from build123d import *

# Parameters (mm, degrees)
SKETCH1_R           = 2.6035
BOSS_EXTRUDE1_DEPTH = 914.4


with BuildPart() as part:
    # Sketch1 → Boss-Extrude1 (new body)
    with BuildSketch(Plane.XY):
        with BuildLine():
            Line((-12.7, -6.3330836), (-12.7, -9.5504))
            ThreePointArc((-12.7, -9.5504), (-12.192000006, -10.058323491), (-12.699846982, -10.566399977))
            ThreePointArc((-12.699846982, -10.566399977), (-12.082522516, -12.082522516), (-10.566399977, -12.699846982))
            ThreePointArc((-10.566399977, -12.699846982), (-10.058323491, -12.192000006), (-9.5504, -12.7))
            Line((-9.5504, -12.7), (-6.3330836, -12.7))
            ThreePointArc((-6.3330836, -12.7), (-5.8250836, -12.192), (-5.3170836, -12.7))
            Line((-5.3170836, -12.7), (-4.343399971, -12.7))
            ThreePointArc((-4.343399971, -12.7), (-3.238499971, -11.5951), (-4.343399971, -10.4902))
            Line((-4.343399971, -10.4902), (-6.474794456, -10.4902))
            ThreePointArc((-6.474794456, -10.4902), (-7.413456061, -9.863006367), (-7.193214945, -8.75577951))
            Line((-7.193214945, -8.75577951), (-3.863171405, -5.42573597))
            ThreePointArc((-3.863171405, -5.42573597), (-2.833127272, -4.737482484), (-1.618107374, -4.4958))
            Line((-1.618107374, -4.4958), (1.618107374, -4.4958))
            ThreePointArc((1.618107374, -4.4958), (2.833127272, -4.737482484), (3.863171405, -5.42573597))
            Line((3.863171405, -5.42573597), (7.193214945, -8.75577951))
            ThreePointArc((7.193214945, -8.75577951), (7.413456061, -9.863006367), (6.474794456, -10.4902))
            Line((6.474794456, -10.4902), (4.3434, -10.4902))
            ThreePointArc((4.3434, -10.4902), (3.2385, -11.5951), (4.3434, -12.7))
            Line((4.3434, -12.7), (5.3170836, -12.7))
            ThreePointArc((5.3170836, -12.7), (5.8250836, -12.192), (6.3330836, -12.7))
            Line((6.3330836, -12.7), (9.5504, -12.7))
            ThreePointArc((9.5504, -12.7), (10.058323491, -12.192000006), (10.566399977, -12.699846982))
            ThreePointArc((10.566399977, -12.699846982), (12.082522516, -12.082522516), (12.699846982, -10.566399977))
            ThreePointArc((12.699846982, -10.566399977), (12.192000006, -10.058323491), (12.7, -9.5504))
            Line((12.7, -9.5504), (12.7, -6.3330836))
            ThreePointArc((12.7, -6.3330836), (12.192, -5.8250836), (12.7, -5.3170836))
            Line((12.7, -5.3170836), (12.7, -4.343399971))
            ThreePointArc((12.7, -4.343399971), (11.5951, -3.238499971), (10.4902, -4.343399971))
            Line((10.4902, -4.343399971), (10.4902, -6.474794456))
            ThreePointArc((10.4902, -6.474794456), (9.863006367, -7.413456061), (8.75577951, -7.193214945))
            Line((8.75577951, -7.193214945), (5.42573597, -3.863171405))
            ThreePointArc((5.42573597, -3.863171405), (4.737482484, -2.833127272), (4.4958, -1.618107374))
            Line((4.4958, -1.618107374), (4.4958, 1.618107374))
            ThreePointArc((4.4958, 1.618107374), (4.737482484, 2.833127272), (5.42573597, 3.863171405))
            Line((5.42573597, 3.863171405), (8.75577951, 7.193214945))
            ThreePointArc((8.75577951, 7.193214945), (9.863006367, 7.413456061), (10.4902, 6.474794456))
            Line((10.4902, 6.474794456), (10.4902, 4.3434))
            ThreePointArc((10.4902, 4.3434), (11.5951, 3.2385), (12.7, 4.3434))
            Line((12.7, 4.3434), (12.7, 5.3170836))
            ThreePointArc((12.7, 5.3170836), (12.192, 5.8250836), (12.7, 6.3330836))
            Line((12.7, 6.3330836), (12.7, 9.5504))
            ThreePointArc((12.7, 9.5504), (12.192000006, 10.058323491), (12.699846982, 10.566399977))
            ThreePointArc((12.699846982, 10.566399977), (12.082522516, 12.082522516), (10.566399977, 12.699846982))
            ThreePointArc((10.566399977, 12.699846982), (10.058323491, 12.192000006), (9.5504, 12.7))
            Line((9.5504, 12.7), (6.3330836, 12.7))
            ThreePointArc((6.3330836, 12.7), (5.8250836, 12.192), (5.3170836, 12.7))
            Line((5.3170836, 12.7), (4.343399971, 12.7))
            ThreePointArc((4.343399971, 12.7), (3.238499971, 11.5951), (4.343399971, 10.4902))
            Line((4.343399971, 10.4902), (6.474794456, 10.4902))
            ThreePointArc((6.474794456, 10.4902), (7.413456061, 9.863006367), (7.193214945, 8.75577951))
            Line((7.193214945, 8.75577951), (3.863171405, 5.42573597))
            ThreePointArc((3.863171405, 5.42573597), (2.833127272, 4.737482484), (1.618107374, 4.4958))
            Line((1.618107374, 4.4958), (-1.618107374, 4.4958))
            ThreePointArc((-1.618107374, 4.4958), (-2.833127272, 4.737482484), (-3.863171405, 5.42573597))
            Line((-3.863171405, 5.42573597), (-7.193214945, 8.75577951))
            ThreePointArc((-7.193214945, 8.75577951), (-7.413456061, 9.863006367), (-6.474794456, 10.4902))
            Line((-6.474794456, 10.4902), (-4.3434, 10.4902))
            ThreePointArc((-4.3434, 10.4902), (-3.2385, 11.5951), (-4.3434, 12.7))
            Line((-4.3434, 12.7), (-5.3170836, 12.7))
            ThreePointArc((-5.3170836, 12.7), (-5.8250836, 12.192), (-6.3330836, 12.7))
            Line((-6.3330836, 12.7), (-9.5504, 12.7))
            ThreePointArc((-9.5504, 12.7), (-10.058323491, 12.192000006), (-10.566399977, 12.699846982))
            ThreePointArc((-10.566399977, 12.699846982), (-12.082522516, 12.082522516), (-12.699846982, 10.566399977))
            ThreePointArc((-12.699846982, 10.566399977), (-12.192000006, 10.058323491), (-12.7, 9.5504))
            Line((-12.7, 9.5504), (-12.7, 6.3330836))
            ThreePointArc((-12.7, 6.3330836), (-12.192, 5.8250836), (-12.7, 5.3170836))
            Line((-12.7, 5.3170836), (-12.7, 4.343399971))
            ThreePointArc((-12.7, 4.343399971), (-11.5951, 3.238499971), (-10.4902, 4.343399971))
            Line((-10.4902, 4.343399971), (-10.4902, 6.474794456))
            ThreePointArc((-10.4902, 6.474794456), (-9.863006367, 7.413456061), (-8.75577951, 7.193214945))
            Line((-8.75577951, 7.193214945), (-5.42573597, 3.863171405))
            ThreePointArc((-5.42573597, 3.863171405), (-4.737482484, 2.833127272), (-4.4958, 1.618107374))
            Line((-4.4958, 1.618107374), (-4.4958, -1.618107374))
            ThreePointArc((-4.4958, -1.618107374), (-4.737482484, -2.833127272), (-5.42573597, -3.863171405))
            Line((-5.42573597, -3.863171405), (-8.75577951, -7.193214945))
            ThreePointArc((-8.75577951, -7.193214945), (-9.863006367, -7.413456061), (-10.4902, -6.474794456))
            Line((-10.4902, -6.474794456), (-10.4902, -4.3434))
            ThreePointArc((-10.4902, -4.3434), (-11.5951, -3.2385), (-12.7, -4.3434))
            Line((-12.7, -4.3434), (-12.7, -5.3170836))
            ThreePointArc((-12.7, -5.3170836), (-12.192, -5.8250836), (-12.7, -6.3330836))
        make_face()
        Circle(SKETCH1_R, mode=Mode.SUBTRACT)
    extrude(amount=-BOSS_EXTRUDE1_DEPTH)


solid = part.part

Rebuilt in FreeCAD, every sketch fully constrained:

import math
import FreeCAD as App
import Part
import Sketcher
Q = App.Units.Quantity

doc = App.newDocument("Part")
body = doc.addObject("PartDesign::Body", "Body")

# Sketch on XY plane
sketch1 = body.newObject("Sketcher::SketchObject", "Sketch")
sketch1.AttachmentSupport = (doc.getObject("XY_Plane"), [""])
sketch1.MapMode = "FlatFace"
sketch1.addGeometry([
    Part.LineSegment(App.Vector(-12.7, -6.333084, 0), App.Vector(-12.7, -9.5504, 0)),  # 0
    Part.ArcOfCircle(Part.Circle(App.Vector(-12.7, -10.0584, 0), App.Vector(0, 0, 1), 0.508), math.radians(-89.982742), math.radians(90)),  # 1
    Part.ArcOfCircle(Part.Circle(App.Vector(-10.5918, -10.5918, 0), App.Vector(0, 0, 1), 2.1082), math.radians(179.309672), math.radians(270.690328)),  # 2
    Part.ArcOfCircle(Part.Circle(App.Vector(-10.0584, -12.7, 0), App.Vector(0, 0, 1), 0.508), math.radians(0), math.radians(179.982742)),  # 3
    Part.LineSegment(App.Vector(-9.5504, -12.7, 0), App.Vector(-6.333084, -12.7, 0)),  # 4
    Part.ArcOfCircle(Part.Circle(App.Vector(-5.825084, -12.7, 0), App.Vector(0, 0, 1), 0.508), math.radians(0), math.radians(180)),  # 5
    Part.LineSegment(App.Vector(-5.317084, -12.7, 0), App.Vector(-4.3434, -12.7, 0)),  # 6
    Part.ArcOfCircle(Part.Circle(App.Vector(-4.3434, -11.5951, 0), App.Vector(0, 0, 1), 1.1049), math.radians(-90), math.radians(90)),  # 7
    Part.LineSegment(App.Vector(-4.3434, -10.4902, 0), App.Vector(-6.474794, -10.4902, 0)),  # 8
    Part.ArcOfCircle(Part.Circle(App.Vector(-6.474794, -9.4742, 0), App.Vector(0, 0, 1), 1.016), math.radians(135), math.radians(270)),  # 9
    Part.LineSegment(App.Vector(-7.193215, -8.75578, 0), App.Vector(-3.863171, -5.425736, 0)),  # 10
    Part.ArcOfCircle(Part.Circle(App.Vector(-1.618107, -7.6708, 0), App.Vector(0, 0, 1), 3.175), math.radians(90), math.radians(135)),  # 11
    Part.LineSegment(App.Vector(-1.618107, -4.4958, 0), App.Vector(1.618107, -4.4958, 0)),  # 12
    Part.ArcOfCircle(Part.Circle(App.Vector(1.618107, -7.6708, 0), App.Vector(0, 0, 1), 3.175), math.radians(45), math.radians(90)),  # 13
    Part.LineSegment(App.Vector(3.863171, -5.425736, 0), App.Vector(7.193215, -8.75578, 0)),  # 14
    Part.ArcOfCircle(Part.Circle(App.Vector(6.474794, -9.4742, 0), App.Vector(0, 0, 1), 1.016), math.radians(-90), math.radians(45)),  # 15
    Part.LineSegment(App.Vector(6.474794, -10.4902, 0), App.Vector(4.3434, -10.4902, 0)),  # 16
    Part.ArcOfCircle(Part.Circle(App.Vector(4.3434, -11.5951, 0), App.Vector(0, 0, 1), 1.1049), math.radians(90), math.radians(270)),  # 17
    Part.LineSegment(App.Vector(4.3434, -12.7, 0), App.Vector(5.317084, -12.7, 0)),  # 18
    Part.ArcOfCircle(Part.Circle(App.Vector(5.825084, -12.7, 0), App.Vector(0, 0, 1), 0.508), math.radians(0), math.radians(180)),  # 19
    Part.LineSegment(App.Vector(6.333084, -12.7, 0), App.Vector(9.5504, -12.7, 0)),  # 20
    Part.ArcOfCircle(Part.Circle(App.Vector(10.0584, -12.7, 0), App.Vector(0, 0, 1), 0.508), math.radians(0.017258), math.radians(180)),  # 21
    Part.ArcOfCircle(Part.Circle(App.Vector(10.5918, -10.5918, 0), App.Vector(0, 0, 1), 2.1082), math.radians(-90.690328), math.radians(0.690328)),  # 22
    Part.ArcOfCircle(Part.Circle(App.Vector(12.7, -10.0584, 0), App.Vector(0, 0, 1), 0.508), math.radians(90), math.radians(269.982742)),  # 23
    Part.LineSegment(App.Vector(12.7, -9.5504, 0), App.Vector(12.7, -6.333084, 0)),  # 24
    Part.ArcOfCircle(Part.Circle(App.Vector(12.7, -5.825084, 0), App.Vector(0, 0, 1), 0.508), math.radians(90), math.radians(270)),  # 25
    Part.LineSegment(App.Vector(12.7, -5.317084, 0), App.Vector(12.7, -4.3434, 0)),  # 26
    Part.ArcOfCircle(Part.Circle(App.Vector(11.5951, -4.3434, 0), App.Vector(0, 0, 1), 1.1049), math.radians(0), math.radians(180)),  # 27
    Part.LineSegment(App.Vector(10.4902, -4.3434, 0), App.Vector(10.4902, -6.474794, 0)),  # 28
    Part.ArcOfCircle(Part.Circle(App.Vector(9.4742, -6.474794, 0), App.Vector(0, 0, 1), 1.016), math.radians(-135), math.radians(0)),  # 29
    Part.LineSegment(App.Vector(8.75578, -7.193215, 0), App.Vector(5.425736, -3.863171, 0)),  # 30
    Part.ArcOfCircle(Part.Circle(App.Vector(7.6708, -1.618107, 0), App.Vector(0, 0, 1), 3.175), math.radians(180), math.radians(225)),  # 31
    Part.LineSegment(App.Vector(4.4958, -1.618107, 0), App.Vector(4.4958, 1.618107, 0)),  # 32
    Part.ArcOfCircle(Part.Circle(App.Vector(7.6708, 1.618107, 0), App.Vector(0, 0, 1), 3.175), math.radians(135), math.radians(180)),  # 33
    Part.LineSegment(App.Vector(5.425736, 3.863171, 0), App.Vector(8.75578, 7.193215, 0)),  # 34
    Part.ArcOfCircle(Part.Circle(App.Vector(9.4742, 6.474794, 0), App.Vector(0, 0, 1), 1.016), math.radians(0), math.radians(135)),  # 35
    Part.LineSegment(App.Vector(10.4902, 6.474794, 0), App.Vector(10.4902, 4.3434, 0)),  # 36
    Part.ArcOfCircle(Part.Circle(App.Vector(11.5951, 4.3434, 0), App.Vector(0, 0, 1), 1.1049), math.radians(180), math.radians(360)),  # 37
    Part.LineSegment(App.Vector(12.7, 4.3434, 0), App.Vector(12.7, 5.317084, 0)),  # 38
    Part.ArcOfCircle(Part.Circle(App.Vector(12.7, 5.825084, 0), App.Vector(0, 0, 1), 0.508), math.radians(90), math.radians(270)),  # 39
    Part.LineSegment(App.Vector(12.7, 6.333084, 0), App.Vector(12.7, 9.5504, 0)),  # 40
    Part.ArcOfCircle(Part.Circle(App.Vector(12.7, 10.0584, 0), App.Vector(0, 0, 1), 0.508), math.radians(90.017258), math.radians(270)),  # 41
    Part.ArcOfCircle(Part.Circle(App.Vector(10.5918, 10.5918, 0), App.Vector(0, 0, 1), 2.1082), math.radians(-0.690328), math.radians(90.690328)),  # 42
    Part.ArcOfCircle(Part.Circle(App.Vector(10.0584, 12.7, 0), App.Vector(0, 0, 1), 0.508), math.radians(180), math.radians(359.982742)),  # 43
    Part.LineSegment(App.Vector(9.5504, 12.7, 0), App.Vector(6.333084, 12.7, 0)),  # 44
    Part.ArcOfCircle(Part.Circle(App.Vector(5.825084, 12.7, 0), App.Vector(0, 0, 1), 0.508), math.radians(180), math.radians(360)),  # 45
    Part.LineSegment(App.Vector(5.317084, 12.7, 0), App.Vector(4.3434, 12.7, 0)),  # 46
    Part.ArcOfCircle(Part.Circle(App.Vector(4.3434, 11.5951, 0), App.Vector(0, 0, 1), 1.1049), math.radians(90), math.radians(270)),  # 47
    Part.LineSegment(App.Vector(4.3434, 10.4902, 0), App.Vector(6.474794, 10.4902, 0)),  # 48
    Part.ArcOfCircle(Part.Circle(App.Vector(6.474794, 9.4742, 0), App.Vector(0, 0, 1), 1.016), math.radians(-45), math.radians(90)),  # 49
    Part.LineSegment(App.Vector(7.193215, 8.75578, 0), App.Vector(3.863171, 5.425736, 0)),  # 50
    Part.ArcOfCircle(Part.Circle(App.Vector(1.618107, 7.6708, 0), App.Vector(0, 0, 1), 3.175), math.radians(-90), math.radians(-45)),  # 51
    Part.LineSegment(App.Vector(1.618107, 4.4958, 0), App.Vector(-1.618107, 4.4958, 0)),  # 52
    Part.ArcOfCircle(Part.Circle(App.Vector(-1.618107, 7.6708, 0), App.Vector(0, 0, 1), 3.175), math.radians(-135), math.radians(-90)),  # 53
    Part.LineSegment(App.Vector(-3.863171, 5.425736, 0), App.Vector(-7.193215, 8.75578, 0)),  # 54
    Part.ArcOfCircle(Part.Circle(App.Vector(-6.474794, 9.4742, 0), App.Vector(0, 0, 1), 1.016), math.radians(90), math.radians(225)),  # 55
    Part.LineSegment(App.Vector(-6.474794, 10.4902, 0), App.Vector(-4.3434, 10.4902, 0)),  # 56
    Part.ArcOfCircle(Part.Circle(App.Vector(-4.3434, 11.5951, 0), App.Vector(0, 0, 1), 1.1049), math.radians(-90), math.radians(90)),  # 57
    Part.LineSegment(App.Vector(-4.3434, 12.7, 0), App.Vector(-5.317084, 12.7, 0)),  # 58
    Part.ArcOfCircle(Part.Circle(App.Vector(-5.825084, 12.7, 0), App.Vector(0, 0, 1), 0.508), math.radians(180), math.radians(360)),  # 59
    Part.LineSegment(App.Vector(-6.333084, 12.7, 0), App.Vector(-9.5504, 12.7, 0)),  # 60
    Part.ArcOfCircle(Part.Circle(App.Vector(-10.0584, 12.7, 0), App.Vector(0, 0, 1), 0.508), math.radians(-179.982742), math.radians(0)),  # 61
    Part.ArcOfCircle(Part.Circle(App.Vector(-10.5918, 10.5918, 0), App.Vector(0, 0, 1), 2.1082), math.radians(89.309672), math.radians(180.690328)),  # 62
    Part.ArcOfCircle(Part.Circle(App.Vector(-12.7, 10.0584, 0), App.Vector(0, 0, 1), 0.508), math.radians(-90), math.radians(89.982742)),  # 63
    Part.LineSegment(App.Vector(-12.7, 9.5504, 0), App.Vector(-12.7, 6.333084, 0)),  # 64
    Part.ArcOfCircle(Part.Circle(App.Vector(-12.7, 5.825084, 0), App.Vector(0, 0, 1), 0.508), math.radians(-90), math.radians(90)),  # 65
    Part.LineSegment(App.Vector(-12.7, 5.317084, 0), App.Vector(-12.7, 4.3434, 0)),  # 66
    Part.ArcOfCircle(Part.Circle(App.Vector(-11.5951, 4.3434, 0), App.Vector(0, 0, 1), 1.1049), math.radians(180), math.radians(360)),  # 67
    Part.LineSegment(App.Vector(-10.4902, 4.3434, 0), App.Vector(-10.4902, 6.474794, 0)),  # 68
    Part.ArcOfCircle(Part.Circle(App.Vector(-9.4742, 6.474794, 0), App.Vector(0, 0, 1), 1.016), math.radians(45), math.radians(180)),  # 69
    Part.LineSegment(App.Vector(-8.75578, 7.193215, 0), App.Vector(-5.425736, 3.863171, 0)),  # 70
    Part.ArcOfCircle(Part.Circle(App.Vector(-7.6708, 1.618107, 0), App.Vector(0, 0, 1), 3.175), math.radians(0), math.radians(45)),  # 71
    Part.LineSegment(App.Vector(-4.4958, 1.618107, 0), App.Vector(-4.4958, -1.618107, 0)),  # 72
    Part.ArcOfCircle(Part.Circle(App.Vector(-7.6708, -1.618107, 0), App.Vector(0, 0, 1), 3.175), math.radians(-45), math.radians(0)),  # 73
    Part.LineSegment(App.Vector(-5.425736, -3.863171, 0), App.Vector(-8.75578, -7.193215, 0)),  # 74
    Part.ArcOfCircle(Part.Circle(App.Vector(-9.4742, -6.474794, 0), App.Vector(0, 0, 1), 1.016), math.radians(180), math.radians(315)),  # 75
    Part.LineSegment(App.Vector(-10.4902, -6.474794, 0), App.Vector(-10.4902, -4.3434, 0)),  # 76
    Part.ArcOfCircle(Part.Circle(App.Vector(-11.5951, -4.3434, 0), App.Vector(0, 0, 1), 1.1049), math.radians(0), math.radians(180)),  # 77
    Part.LineSegment(App.Vector(-12.7, -4.3434, 0), App.Vector(-12.7, -5.317084, 0)),  # 78
    Part.ArcOfCircle(Part.Circle(App.Vector(-12.7, -5.825084, 0), App.Vector(0, 0, 1), 0.508), math.radians(-90), math.radians(90)),  # 79
    Part.Circle(App.Vector(0, 0, 0), App.Vector(0, 0, 1), 2.6035),  # 80
], False)
sketch1.addConstraint([
    Sketcher.Constraint("Coincident", 0, 2, 1, 2),
    Sketcher.Constraint("Coincident", 1, 1, 2, 1),
    Sketcher.Constraint("Coincident", 2, 2, 3, 2),
    Sketcher.Constraint("Coincident", 3, 1, 4, 1),
    Sketcher.Constraint("Coincident", 4, 2, 5, 2),
    Sketcher.Constraint("Coincident", 5, 1, 6, 1),
    Sketcher.Constraint("Tangent", 6, 2, 7, 1),
    Sketcher.Constraint("Tangent", 7, 2, 8, 1),
    Sketcher.Constraint("Tangent", 8, 2, 9, 2),
    Sketcher.Constraint("Tangent", 9, 1, 10, 1),
    Sketcher.Constraint("Tangent", 10, 2, 11, 2),
    Sketcher.Constraint("Tangent", 11, 1, 12, 1),
    Sketcher.Constraint("Tangent", 12, 2, 13, 2),
    Sketcher.Constraint("Tangent", 13, 1, 14, 1),
    Sketcher.Constraint("Tangent", 14, 2, 15, 2),
    Sketcher.Constraint("Tangent", 15, 1, 16, 1),
    Sketcher.Constraint("Tangent", 16, 2, 17, 1),
    Sketcher.Constraint("Tangent", 17, 2, 18, 1),
    Sketcher.Constraint("Coincident", 18, 2, 19, 2),
    Sketcher.Constraint("Coincident", 19, 1, 20, 1),
    Sketcher.Constraint("Coincident", 20, 2, 21, 2),
    Sketcher.Constraint("Coincident", 21, 1, 22, 1),
    Sketcher.Constraint("Coincident", 22, 2, 23, 2),
    Sketcher.Constraint("Coincident", 23, 1, 24, 1),
    Sketcher.Constraint("Coincident", 24, 2, 25, 2),
    Sketcher.Constraint("Coincident", 25, 1, 26, 1),
    Sketcher.Constraint("Tangent", 26, 2, 27, 1),
    Sketcher.Constraint("Tangent", 27, 2, 28, 1),
    Sketcher.Constraint("Tangent", 28, 2, 29, 2),
    Sketcher.Constraint("Tangent", 29, 1, 30, 1),
    Sketcher.Constraint("Tangent", 30, 2, 31, 2),
    Sketcher.Constraint("Tangent", 31, 1, 32, 1),
    Sketcher.Constraint("Tangent", 32, 2, 33, 2),
    Sketcher.Constraint("Tangent", 33, 1, 34, 1),
    Sketcher.Constraint("Tangent", 34, 2, 35, 2),
    Sketcher.Constraint("Tangent", 35, 1, 36, 1),
    Sketcher.Constraint("Tangent", 36, 2, 37, 1),
    Sketcher.Constraint("Tangent", 37, 2, 38, 1),
    Sketcher.Constraint("Coincident", 38, 2, 39, 2),
    Sketcher.Constraint("Coincident", 39, 1, 40, 1),
    Sketcher.Constraint("Coincident", 40, 2, 41, 2),
    Sketcher.Constraint("Coincident", 41, 1, 42, 1),
    Sketcher.Constraint("Coincident", 42, 2, 43, 2),
    Sketcher.Constraint("Coincident", 43, 1, 44, 1),
    Sketcher.Constraint("Coincident", 44, 2, 45, 2),
    Sketcher.Constraint("Coincident", 45, 1, 46, 1),
    Sketcher.Constraint("Tangent", 46, 2, 47, 1),
    Sketcher.Constraint("Tangent", 47, 2, 48, 1),
    Sketcher.Constraint("Tangent", 48, 2, 49, 2),
    Sketcher.Constraint("Tangent", 49, 1, 50, 1),
    Sketcher.Constraint("Tangent", 50, 2, 51, 2),
    Sketcher.Constraint("Tangent", 51, 1, 52, 1),
    Sketcher.Constraint("Tangent", 52, 2, 53, 2),
    Sketcher.Constraint("Tangent", 53, 1, 54, 1),
    Sketcher.Constraint("Tangent", 54, 2, 55, 2),
    Sketcher.Constraint("Tangent", 55, 1, 56, 1),
    Sketcher.Constraint("Tangent", 56, 2, 57, 1),
    Sketcher.Constraint("Tangent", 57, 2, 58, 1),
    Sketcher.Constraint("Coincident", 58, 2, 59, 2),
    Sketcher.Constraint("Coincident", 59, 1, 60, 1),
    Sketcher.Constraint("Coincident", 60, 2, 61, 2),
    Sketcher.Constraint("Coincident", 61, 1, 62, 1),
    Sketcher.Constraint("Coincident", 62, 2, 63, 2),
    Sketcher.Constraint("Coincident", 63, 1, 64, 1),
    Sketcher.Constraint("Coincident", 64, 2, 65, 2),
    Sketcher.Constraint("Coincident", 65, 1, 66, 1),
    Sketcher.Constraint("Tangent", 66, 2, 67, 1),
    Sketcher.Constraint("Tangent", 67, 2, 68, 1),
    Sketcher.Constraint("Tangent", 68, 2, 69, 2),
    Sketcher.Constraint("Tangent", 69, 1, 70, 1),
    Sketcher.Constraint("Tangent", 70, 2, 71, 2),
    Sketcher.Constraint("Tangent", 71, 1, 72, 1),
    Sketcher.Constraint("Tangent", 72, 2, 73, 2),
    Sketcher.Constraint("Tangent", 73, 1, 74, 1),
    Sketcher.Constraint("Tangent", 74, 2, 75, 2),
    Sketcher.Constraint("Tangent", 75, 1, 76, 1),
    Sketcher.Constraint("Tangent", 76, 2, 77, 1),
    Sketcher.Constraint("Tangent", 77, 2, 78, 1),
    Sketcher.Constraint("Coincident", 78, 2, 79, 2),
    Sketcher.Constraint("Coincident", 79, 1, 0, 1),
    Sketcher.Constraint("Vertical", 0),
    Sketcher.Constraint("Horizontal", 4),
    Sketcher.Constraint("Horizontal", 6),
    Sketcher.Constraint("Horizontal", 8),
    Sketcher.Constraint("Horizontal", 12),
    Sketcher.Constraint("Horizontal", 16),
    Sketcher.Constraint("Horizontal", 18),
    Sketcher.Constraint("Horizontal", 20),
    Sketcher.Constraint("Vertical", 24),
    Sketcher.Constraint("Vertical", 26),
    Sketcher.Constraint("Vertical", 28),
    Sketcher.Constraint("Vertical", 32),
    Sketcher.Constraint("Vertical", 36),
    Sketcher.Constraint("Vertical", 38),
    Sketcher.Constraint("Vertical", 40),
    Sketcher.Constraint("Horizontal", 44),
    Sketcher.Constraint("Horizontal", 46),
    Sketcher.Constraint("Horizontal", 48),
    Sketcher.Constraint("Horizontal", 52),
    Sketcher.Constraint("Horizontal", 56),
    Sketcher.Constraint("Horizontal", 58),
    Sketcher.Constraint("Horizontal", 60),
    Sketcher.Constraint("Vertical", 64),
    Sketcher.Constraint("Vertical", 66),
    Sketcher.Constraint("Vertical", 68),
    Sketcher.Constraint("Vertical", 72),
    Sketcher.Constraint("Vertical", 76),
    Sketcher.Constraint("Vertical", 78),
    Sketcher.Constraint("Coincident", 80, 3, -1, 1),
    Sketcher.Constraint("Equal", 1, 3),
    Sketcher.Constraint("Equal", 3, 5),
    Sketcher.Constraint("Equal", 11, 13),
    Sketcher.Constraint("Equal", 9, 15),
    Sketcher.Constraint("Equal", 7, 17),
    Sketcher.Constraint("Equal", 5, 19),
    Sketcher.Constraint("Equal", 19, 21),
    Sketcher.Constraint("Equal", 2, 22),
    Sketcher.Constraint("Equal", 21, 23),
    Sketcher.Constraint("Equal", 23, 25),
    Sketcher.Constraint("Equal", 17, 27),
    Sketcher.Constraint("Equal", 15, 29),
    Sketcher.Constraint("Equal", 13, 31),
    Sketcher.Constraint("Equal", 31, 33),
    Sketcher.Constraint("Equal", 29, 35),
    Sketcher.Constraint("Equal", 27, 37),
    Sketcher.Constraint("Equal", 25, 39),
    Sketcher.Constraint("Equal", 39, 41),
    Sketcher.Constraint("Equal", 22, 42),
    Sketcher.Constraint("Equal", 41, 43),
    Sketcher.Constraint("Equal", 43, 45),
    Sketcher.Constraint("Equal", 37, 47),
    Sketcher.Constraint("Equal", 35, 49),
    Sketcher.Constraint("Equal", 33, 51),
    Sketcher.Constraint("Equal", 51, 53),
    Sketcher.Constraint("Equal", 49, 55),
    Sketcher.Constraint("Equal", 47, 57),
    Sketcher.Constraint("Equal", 45, 59),
    Sketcher.Constraint("Equal", 59, 61),
    Sketcher.Constraint("Equal", 42, 62),
    Sketcher.Constraint("Equal", 61, 63),
    Sketcher.Constraint("Equal", 63, 65),
    Sketcher.Constraint("Equal", 57, 67),
    Sketcher.Constraint("Equal", 55, 69),
    Sketcher.Constraint("Equal", 53, 71),
    Sketcher.Constraint("Equal", 71, 73),
    Sketcher.Constraint("Equal", 69, 75),
    Sketcher.Constraint("Equal", 67, 77),
    Sketcher.Constraint("Equal", 65, 79),
    Sketcher.Constraint("Symmetric", 1, 3, 41, 3, -1, 1),
    Sketcher.Constraint("Symmetric", 2, 3, 42, 3, -1, 1),
    Sketcher.Constraint("Symmetric", 3, 3, 43, 3, -1, 1),
    Sketcher.Constraint("Symmetric", 5, 3, 45, 3, -1, 1),
    Sketcher.Constraint("Symmetric", 7, 3, 47, 3, -1, 1),
    Sketcher.Constraint("Symmetric", 11, 3, 51, 3, -1, 1),
    Sketcher.Constraint("Symmetric", 15, 3, 55, 3, -1, 1),
    Sketcher.Constraint("Symmetric", 19, 3, 59, 3, -1, 1),
    Sketcher.Constraint("Symmetric", 21, 3, 61, 3, -1, 1),
    Sketcher.Constraint("Symmetric", 22, 3, 62, 3, -1, 1),
    Sketcher.Constraint("Symmetric", 23, 3, 63, 3, -1, 1),
    Sketcher.Constraint("Symmetric", 25, 3, 65, 3, -1, 1),
    Sketcher.Constraint("Symmetric", 27, 3, 67, 3, -1, 1),
    Sketcher.Constraint("Symmetric", 31, 3, 71, 3, -1, 1),
    Sketcher.Constraint("Symmetric", 35, 3, 75, 3, -1, 1),
    Sketcher.Constraint("Symmetric", 39, 3, 79, 3, -1, 1),
    Sketcher.Constraint("Symmetric", 9, 3, 15, 3, -2),
    Sketcher.Constraint("Symmetric", 5, 3, 19, 3, -2),
    Sketcher.Constraint("Symmetric", 3, 3, 21, 3, -2),
    Sketcher.Constraint("Symmetric", 2, 3, 22, 3, -2),
    Sketcher.Constraint("Symmetric", 1, 3, 23, 3, -2),
    Sketcher.Constraint("Symmetric", 39, 3, 65, 3, -2),
    Sketcher.Constraint("Symmetric", 37, 3, 67, 3, -2),
    Sketcher.Constraint("Symmetric", 50, 2, 53, 1, -2),
    Sketcher.Constraint("Symmetric", 34, 2, 69, 1, -2),
    Sketcher.Constraint("Symmetric", 30, 2, 73, 1, -2),
    Sketcher.Constraint("Perpendicular", 10, 14),
    Sketcher.Constraint("Parallel", 14, 30),
    Sketcher.Constraint("Perpendicular", 30, 34),
    Sketcher.Constraint("Horizontal", 3, 3, 5, 3),
    Sketcher.Constraint("Horizontal", 27, 3, 77, 3),
    Sketcher.Constraint("Horizontal", 21, 3, 3, 1),
    Sketcher.Constraint("Horizontal", 4, 2, 5, 1),
    Sketcher.Constraint("Horizontal", 18, 2, 19, 1),
    Sketcher.Constraint("Horizontal", 61, 3, 43, 1),
    Sketcher.Constraint("Horizontal", 58, 2, 59, 1),
    Sketcher.Constraint("Vertical", 23, 3, 25, 3),
    Sketcher.Constraint("Vertical", 17, 3, 47, 3),
    Sketcher.Constraint("Vertical", 7, 3, 57, 3),
    Sketcher.Constraint("Vertical", 79, 3, 0, 2),
    Sketcher.Constraint("Vertical", 41, 3, 23, 1),
    Sketcher.Constraint("Vertical", 24, 2, 25, 1),
    Sketcher.Constraint("Vertical", 38, 2, 39, 1),
    Sketcher.Constraint("Vertical", 0, 2, 63, 1),
    Sketcher.Constraint("Equal", 60, 0),
    Sketcher.Constraint("Equal", 58, 26),
    Sketcher.Constraint("Equal", 56, 28),
    Sketcher.Constraint("Equal", 52, 32),
    Sketcher.Constraint("Equal", 14, 30),
    Sketcher.Constraint("Radius", 1, Q("0.02 in")),
    Sketcher.Constraint("Radius", 9, Q("0.04 in")),
    Sketcher.Constraint("Diameter", 80, Q("0.205 in")),
    Sketcher.Constraint("Radius", 2, Q("0.083 in")),
    Sketcher.Constraint("Radius", 11, Q("0.125 in")),
    Sketcher.Constraint("DistanceX", 1, 3, -1, 1, Q("0.5 in")),
    Sketcher.Constraint("DistanceY", 3, 3, -1, 1, Q("0.5 in")),
    Sketcher.Constraint("Radius", 7, Q("0.0435 in")),
    Sketcher.Constraint("DistanceY", 1, 3, -1, 1, Q("0.396 in")),
    Sketcher.Constraint("DistanceX", 2, 3, -1, 1, Q("0.417 in")),
    Sketcher.Constraint("DistanceY", 2, 3, -1, 1, Q("0.417 in")),
    Sketcher.Constraint("DistanceX", 7, 3, -1, 1, Q("0.171 in")),
    Sketcher.Constraint("DistanceY", 11, 3, -1, 1, Q("0.302 in")),
    Sketcher.Constraint("DistanceX", 4, 1, 4, 2, 3.217316),
    Sketcher.Constraint("DistanceX", 8, 2, 8, 1, 2.131394),
])
pad1 = body.newObject("PartDesign::Pad", "Pad")
pad1.Profile = sketch1
pad1.Length = Q("36 in")
pad1.Reversed = True

doc.recompute()
